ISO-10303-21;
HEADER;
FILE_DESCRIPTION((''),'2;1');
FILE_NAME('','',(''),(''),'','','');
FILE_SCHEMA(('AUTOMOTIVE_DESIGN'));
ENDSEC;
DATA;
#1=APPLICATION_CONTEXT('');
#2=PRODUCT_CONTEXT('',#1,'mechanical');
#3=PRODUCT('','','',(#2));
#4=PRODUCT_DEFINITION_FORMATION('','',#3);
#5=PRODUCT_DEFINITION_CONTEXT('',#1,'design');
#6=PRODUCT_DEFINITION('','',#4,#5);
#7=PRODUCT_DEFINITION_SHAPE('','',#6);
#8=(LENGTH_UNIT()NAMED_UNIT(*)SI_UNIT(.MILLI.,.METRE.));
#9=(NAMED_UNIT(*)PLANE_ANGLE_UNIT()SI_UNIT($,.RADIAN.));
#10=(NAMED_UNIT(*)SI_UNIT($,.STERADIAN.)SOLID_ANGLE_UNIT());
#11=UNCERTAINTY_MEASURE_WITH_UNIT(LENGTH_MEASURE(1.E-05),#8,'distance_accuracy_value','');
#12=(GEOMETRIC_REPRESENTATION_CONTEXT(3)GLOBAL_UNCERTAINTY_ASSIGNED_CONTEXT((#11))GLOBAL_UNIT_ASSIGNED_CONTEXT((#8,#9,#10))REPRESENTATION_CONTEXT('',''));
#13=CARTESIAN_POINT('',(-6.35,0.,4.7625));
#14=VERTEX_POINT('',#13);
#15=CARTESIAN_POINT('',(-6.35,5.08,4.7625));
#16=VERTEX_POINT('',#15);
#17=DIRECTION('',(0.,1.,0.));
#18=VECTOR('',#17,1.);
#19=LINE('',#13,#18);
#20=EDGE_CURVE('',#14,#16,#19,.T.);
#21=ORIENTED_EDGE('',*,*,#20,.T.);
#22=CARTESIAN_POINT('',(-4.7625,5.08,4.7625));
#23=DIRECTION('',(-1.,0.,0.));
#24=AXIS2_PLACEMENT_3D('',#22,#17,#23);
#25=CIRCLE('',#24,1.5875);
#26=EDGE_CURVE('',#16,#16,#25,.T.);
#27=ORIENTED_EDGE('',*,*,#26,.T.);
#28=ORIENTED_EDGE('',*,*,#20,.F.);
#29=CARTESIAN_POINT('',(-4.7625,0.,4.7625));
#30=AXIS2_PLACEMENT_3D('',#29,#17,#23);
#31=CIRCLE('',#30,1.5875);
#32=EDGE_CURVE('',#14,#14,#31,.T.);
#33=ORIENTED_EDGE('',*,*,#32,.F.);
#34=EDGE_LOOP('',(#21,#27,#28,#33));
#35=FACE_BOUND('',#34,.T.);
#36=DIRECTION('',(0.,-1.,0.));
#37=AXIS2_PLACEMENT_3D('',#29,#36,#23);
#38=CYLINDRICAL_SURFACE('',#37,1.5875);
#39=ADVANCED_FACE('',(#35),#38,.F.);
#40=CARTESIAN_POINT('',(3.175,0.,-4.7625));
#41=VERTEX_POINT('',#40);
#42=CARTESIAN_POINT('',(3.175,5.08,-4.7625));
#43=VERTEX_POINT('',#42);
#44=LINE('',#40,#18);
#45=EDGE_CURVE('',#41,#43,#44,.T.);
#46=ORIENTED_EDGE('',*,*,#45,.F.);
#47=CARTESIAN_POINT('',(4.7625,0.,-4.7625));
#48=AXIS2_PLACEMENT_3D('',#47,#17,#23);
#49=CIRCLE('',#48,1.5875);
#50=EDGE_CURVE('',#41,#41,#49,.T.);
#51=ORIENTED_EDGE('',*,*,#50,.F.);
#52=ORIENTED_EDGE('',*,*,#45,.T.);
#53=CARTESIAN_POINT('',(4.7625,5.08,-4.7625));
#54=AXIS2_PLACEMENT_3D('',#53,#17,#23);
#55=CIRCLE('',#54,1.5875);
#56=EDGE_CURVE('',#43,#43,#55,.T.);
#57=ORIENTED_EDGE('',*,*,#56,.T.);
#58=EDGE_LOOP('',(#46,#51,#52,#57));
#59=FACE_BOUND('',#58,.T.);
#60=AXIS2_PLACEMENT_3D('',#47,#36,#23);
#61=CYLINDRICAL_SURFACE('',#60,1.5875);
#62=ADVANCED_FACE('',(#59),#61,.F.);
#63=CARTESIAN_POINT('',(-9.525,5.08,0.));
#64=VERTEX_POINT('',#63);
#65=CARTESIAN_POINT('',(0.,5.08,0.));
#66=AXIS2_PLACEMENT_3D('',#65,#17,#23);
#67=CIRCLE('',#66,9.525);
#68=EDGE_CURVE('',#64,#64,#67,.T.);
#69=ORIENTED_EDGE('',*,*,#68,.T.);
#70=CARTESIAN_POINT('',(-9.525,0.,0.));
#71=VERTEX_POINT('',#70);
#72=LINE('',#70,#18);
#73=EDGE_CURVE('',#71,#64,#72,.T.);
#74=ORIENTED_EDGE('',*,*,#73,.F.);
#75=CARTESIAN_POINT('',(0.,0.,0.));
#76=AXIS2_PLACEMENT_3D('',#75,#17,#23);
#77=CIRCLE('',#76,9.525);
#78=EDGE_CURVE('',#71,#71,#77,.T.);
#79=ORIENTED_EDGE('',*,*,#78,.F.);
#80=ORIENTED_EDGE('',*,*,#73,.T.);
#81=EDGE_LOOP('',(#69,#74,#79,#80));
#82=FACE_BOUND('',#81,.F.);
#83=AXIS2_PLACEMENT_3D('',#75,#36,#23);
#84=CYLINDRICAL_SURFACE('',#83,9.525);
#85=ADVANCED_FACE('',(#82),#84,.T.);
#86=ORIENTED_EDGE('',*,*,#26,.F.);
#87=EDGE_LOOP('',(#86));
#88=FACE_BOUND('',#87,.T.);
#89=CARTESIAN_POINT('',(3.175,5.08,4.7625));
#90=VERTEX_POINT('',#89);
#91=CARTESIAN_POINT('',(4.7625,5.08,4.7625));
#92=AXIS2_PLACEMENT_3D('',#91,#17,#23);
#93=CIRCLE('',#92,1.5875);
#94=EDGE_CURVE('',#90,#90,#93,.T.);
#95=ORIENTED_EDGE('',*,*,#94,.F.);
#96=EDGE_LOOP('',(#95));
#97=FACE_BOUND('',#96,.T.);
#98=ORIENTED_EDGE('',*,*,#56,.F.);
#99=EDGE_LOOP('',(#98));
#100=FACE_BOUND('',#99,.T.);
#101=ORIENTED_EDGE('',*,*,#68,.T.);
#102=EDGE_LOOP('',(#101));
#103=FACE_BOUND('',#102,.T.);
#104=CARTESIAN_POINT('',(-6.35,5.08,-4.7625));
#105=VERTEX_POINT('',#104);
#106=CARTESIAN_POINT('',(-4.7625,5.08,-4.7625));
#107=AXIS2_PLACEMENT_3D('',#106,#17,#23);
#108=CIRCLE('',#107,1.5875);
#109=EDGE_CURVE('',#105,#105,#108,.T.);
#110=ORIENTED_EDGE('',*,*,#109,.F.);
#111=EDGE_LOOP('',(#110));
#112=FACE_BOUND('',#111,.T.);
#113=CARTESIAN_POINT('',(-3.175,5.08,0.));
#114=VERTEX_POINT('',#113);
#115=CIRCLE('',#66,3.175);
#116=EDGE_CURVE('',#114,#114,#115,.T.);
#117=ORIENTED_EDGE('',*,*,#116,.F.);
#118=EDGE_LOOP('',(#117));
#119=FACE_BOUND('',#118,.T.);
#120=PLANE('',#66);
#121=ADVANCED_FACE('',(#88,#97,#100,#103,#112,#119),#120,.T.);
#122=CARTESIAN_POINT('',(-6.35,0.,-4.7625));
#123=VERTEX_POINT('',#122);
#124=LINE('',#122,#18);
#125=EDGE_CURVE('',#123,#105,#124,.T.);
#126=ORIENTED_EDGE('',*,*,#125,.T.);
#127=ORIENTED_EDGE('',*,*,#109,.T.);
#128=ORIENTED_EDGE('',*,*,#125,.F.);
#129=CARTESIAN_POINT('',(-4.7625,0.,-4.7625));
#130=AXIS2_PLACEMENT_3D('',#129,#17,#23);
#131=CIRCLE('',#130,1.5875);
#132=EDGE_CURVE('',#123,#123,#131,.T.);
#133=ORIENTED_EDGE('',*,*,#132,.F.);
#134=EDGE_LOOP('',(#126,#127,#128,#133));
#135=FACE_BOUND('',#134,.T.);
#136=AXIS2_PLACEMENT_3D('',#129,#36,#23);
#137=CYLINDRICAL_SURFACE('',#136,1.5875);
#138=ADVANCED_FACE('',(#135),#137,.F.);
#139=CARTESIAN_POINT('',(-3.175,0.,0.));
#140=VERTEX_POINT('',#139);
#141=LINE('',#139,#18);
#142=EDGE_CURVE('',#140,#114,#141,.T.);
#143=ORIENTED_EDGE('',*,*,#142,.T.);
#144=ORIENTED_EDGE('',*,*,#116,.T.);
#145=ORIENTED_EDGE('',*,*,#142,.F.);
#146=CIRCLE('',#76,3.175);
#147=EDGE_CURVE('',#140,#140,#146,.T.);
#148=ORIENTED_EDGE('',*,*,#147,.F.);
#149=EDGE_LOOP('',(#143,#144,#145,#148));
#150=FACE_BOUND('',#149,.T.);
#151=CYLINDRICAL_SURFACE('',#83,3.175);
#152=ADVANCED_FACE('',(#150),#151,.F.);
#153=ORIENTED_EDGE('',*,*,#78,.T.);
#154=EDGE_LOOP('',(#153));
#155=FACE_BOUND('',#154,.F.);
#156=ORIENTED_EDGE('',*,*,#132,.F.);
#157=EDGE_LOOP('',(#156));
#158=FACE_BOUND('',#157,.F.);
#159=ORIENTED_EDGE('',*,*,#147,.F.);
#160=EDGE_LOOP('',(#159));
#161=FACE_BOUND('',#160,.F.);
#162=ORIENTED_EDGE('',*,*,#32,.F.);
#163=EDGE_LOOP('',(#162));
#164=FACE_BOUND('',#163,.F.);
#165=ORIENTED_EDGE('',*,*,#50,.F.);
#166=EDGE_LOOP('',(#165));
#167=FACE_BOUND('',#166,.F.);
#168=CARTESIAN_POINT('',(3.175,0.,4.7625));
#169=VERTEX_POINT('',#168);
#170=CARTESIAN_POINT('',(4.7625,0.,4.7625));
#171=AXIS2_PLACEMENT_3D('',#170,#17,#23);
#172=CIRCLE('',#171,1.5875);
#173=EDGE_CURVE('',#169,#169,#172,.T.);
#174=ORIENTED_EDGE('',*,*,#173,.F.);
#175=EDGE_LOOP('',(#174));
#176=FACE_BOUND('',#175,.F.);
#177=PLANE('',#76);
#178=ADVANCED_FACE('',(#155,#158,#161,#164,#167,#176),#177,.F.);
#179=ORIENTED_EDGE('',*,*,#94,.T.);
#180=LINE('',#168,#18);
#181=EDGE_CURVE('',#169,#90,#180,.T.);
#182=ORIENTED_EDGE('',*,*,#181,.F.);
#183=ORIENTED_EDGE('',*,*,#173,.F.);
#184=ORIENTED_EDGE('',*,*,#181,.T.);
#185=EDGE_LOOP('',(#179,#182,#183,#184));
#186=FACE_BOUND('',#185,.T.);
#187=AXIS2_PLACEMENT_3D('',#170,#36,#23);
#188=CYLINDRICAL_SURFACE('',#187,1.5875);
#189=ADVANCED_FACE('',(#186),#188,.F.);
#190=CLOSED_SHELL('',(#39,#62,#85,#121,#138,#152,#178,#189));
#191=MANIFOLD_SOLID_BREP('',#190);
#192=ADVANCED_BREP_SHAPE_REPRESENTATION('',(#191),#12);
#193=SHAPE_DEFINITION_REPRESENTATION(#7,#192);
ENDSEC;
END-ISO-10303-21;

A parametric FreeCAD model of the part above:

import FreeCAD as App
import Part
import Sketcher
Q = App.Units.Quantity

doc = App.newDocument("Part")
body = doc.addObject("PartDesign::Body", "Body")

sketch1 = body.newObject("Sketcher::SketchObject", "Sketch")
sketch1.AttachmentSupport = (doc.getObject("XZ_Plane"), [""])
sketch1.MapMode = "FlatFace"
sketch1.addGeometry([
    Part.Circle(App.Vector(0, 0, 0), App.Vector(0, 0, 1), 9.5),
    Part.Circle(App.Vector(4.8, -4.8, 0), App.Vector(0, 0, 1), 1.6),
    Part.Circle(App.Vector(-4.8, -4.8, 0), App.Vector(0, 0, 1), 1.6),
    Part.Circle(App.Vector(4.8, 4.8, 0), App.Vector(0, 0, 1), 1.6),
    Part.Circle(App.Vector(0, 0, 0), App.Vector(0, 0, 1), 3.2),
    Part.Circle(App.Vector(-4.8, 4.8, 0), App.Vector(0, 0, 1), 1.6),
], False)
sketch1.addConstraint([
    Sketcher.Constraint("Coincident", 0, 3, -1, 1),
    Sketcher.Constraint("Coincident", 4, 3, -1, 1),
    Sketcher.Constraint("Equal", 1, 2),
    Sketcher.Constraint("Equal", 2, 3),
    Sketcher.Constraint("Equal", 3, 5),
    Sketcher.Constraint("Symmetric", 2, 3, 3, 3, -1, 1),
    Sketcher.Constraint("Symmetric", 1, 3, 5, 3, -1, 1),
    Sketcher.Constraint("Symmetric", 1, 3, 2, 3, -2),
    Sketcher.Constraint("Diameter", 0, Q("0.75 in")),
    Sketcher.Constraint("Diameter", 4, Q("0.25 in")),
    Sketcher.Constraint("Diameter", 1, Q("0.125 in")),
    Sketcher.Constraint("DistanceX", -1, 1, 1, 3, Q("0.1875 in")),
    Sketcher.Constraint("DistanceY", 1, 3, -1, 1, Q("0.1875 in")),
])
pad1 = body.newObject("PartDesign::Pad", "Pad")
pad1.Profile = sketch1
pad1.Length = Q("0.2 in")
pad1.Reversed = True

doc.recompute()
